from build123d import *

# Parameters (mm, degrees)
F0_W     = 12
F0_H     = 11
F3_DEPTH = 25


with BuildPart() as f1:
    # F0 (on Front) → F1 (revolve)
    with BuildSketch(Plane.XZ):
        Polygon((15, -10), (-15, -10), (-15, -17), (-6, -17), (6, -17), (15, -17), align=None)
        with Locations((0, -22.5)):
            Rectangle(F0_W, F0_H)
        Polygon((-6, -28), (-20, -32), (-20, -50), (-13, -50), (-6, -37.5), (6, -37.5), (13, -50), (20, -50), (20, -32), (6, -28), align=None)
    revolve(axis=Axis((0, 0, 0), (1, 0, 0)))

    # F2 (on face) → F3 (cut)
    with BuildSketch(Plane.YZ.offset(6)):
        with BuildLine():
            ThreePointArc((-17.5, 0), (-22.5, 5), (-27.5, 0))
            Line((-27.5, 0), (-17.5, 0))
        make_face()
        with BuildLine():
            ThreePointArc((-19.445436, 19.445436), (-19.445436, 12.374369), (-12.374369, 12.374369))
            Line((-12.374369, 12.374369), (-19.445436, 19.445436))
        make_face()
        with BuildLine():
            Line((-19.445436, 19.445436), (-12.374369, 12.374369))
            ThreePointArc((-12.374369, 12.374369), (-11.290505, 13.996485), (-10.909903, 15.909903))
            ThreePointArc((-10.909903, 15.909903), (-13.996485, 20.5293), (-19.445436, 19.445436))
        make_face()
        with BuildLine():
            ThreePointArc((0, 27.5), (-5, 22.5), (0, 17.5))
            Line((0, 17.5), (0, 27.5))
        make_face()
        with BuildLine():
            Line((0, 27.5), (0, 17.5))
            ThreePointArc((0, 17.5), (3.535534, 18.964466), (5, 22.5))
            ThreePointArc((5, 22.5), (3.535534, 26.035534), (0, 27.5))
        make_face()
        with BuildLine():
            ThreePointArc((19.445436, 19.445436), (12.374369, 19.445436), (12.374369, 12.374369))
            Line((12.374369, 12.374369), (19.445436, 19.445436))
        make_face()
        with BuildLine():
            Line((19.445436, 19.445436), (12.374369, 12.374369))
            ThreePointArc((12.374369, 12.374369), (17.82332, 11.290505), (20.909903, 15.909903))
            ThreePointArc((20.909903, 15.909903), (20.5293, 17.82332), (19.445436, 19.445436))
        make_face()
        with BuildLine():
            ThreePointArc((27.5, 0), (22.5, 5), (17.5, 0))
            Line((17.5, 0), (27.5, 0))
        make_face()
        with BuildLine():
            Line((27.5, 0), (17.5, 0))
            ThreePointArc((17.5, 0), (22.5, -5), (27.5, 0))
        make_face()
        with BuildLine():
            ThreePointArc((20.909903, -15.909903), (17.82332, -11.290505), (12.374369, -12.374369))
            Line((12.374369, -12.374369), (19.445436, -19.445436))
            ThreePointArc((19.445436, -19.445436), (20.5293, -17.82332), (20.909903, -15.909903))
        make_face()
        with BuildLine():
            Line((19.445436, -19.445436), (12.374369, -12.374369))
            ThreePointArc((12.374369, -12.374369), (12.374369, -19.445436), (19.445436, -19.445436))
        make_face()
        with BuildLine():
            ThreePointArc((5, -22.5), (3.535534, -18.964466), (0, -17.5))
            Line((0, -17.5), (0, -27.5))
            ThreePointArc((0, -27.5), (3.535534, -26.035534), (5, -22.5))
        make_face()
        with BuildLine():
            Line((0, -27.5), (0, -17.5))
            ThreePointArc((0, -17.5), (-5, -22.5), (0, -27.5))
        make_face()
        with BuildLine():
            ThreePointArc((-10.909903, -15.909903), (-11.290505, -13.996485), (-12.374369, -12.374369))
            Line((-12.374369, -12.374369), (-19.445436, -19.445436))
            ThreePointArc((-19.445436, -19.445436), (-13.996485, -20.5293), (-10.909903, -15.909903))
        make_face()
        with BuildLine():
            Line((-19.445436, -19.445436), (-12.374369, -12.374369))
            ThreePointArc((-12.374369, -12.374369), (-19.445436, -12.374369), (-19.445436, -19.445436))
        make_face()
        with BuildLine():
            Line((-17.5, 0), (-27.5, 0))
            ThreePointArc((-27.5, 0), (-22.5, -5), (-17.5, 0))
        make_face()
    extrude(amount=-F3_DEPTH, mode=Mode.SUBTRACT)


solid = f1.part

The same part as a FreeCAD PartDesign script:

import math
import FreeCAD as App
import Part
import Sketcher

V = App.Vector

doc = App.newDocument("Part")
body = doc.addObject("PartDesign::Body", "Body")

sketch1 = body.newObject("Sketcher::SketchObject", "Sketch")
sketch1.AttachmentSupport = (doc.getObject("XZ_Plane"), [""])
sketch1.MapMode = "FlatFace"
sketch1.addGeometry(Part.LineSegment(V(15, -10, 0), V(-15, -10, 0)), False)
sketch1.addGeometry(Part.LineSegment(V(-15, -10, 0), V(-15, -17, 0)), False)
sketch1.addGeometry(Part.LineSegment(V(-15, -17, 0), V(-6, -17, 0)), False)
sketch1.addGeometry(Part.LineSegment(V(-6, -17, 0), V(-6, -28, 0)), False)
sketch1.addGeometry(Part.LineSegment(V(-6, -28, 0), V(-20, -32, 0)), False)
sketch1.addGeometry(Part.LineSegment(V(-20, -32, 0), V(-20, -50, 0)), False)
sketch1.addGeometry(Part.LineSegment(V(-20, -50, 0), V(-13, -50, 0)), False)
sketch1.addGeometry(Part.LineSegment(V(-13, -50, 0), V(-6, -37.5, 0)), False)
sketch1.addGeometry(Part.LineSegment(V(-6, -37.5, 0), V(6, -37.5, 0)), False)
sketch1.addGeometry(Part.LineSegment(V(6, -37.5, 0), V(13, -50, 0)), False)
sketch1.addGeometry(Part.LineSegment(V(13, -50, 0), V(20, -50, 0)), False)
sketch1.addGeometry(Part.LineSegment(V(20, -50, 0), V(20, -32, 0)), False)
sketch1.addGeometry(Part.LineSegment(V(20, -32, 0), V(6, -28, 0)), False)
sketch1.addGeometry(Part.LineSegment(V(6, -28, 0), V(6, -17, 0)), False)
sketch1.addGeometry(Part.LineSegment(V(6, -17, 0), V(15, -17, 0)), False)
sketch1.addGeometry(Part.LineSegment(V(15, -17, 0), V(15, -10, 0)), False)
sketch1.addConstraint(Sketcher.Constraint("Coincident", 0, 2, 1, 1))
sketch1.addConstraint(Sketcher.Constraint("Coincident", 1, 2, 2, 1))
sketch1.addConstraint(Sketcher.Constraint("Coincident", 2, 2, 3, 1))
sketch1.addConstraint(Sketcher.Constraint("Coincident", 3, 2, 4, 1))
sketch1.addConstraint(Sketcher.Constraint("Coincident", 4, 2, 5, 1))
sketch1.addConstraint(Sketcher.Constraint("Coincident", 5, 2, 6, 1))
sketch1.addConstraint(Sketcher.Constraint("Coincident", 6, 2, 7, 1))
sketch1.addConstraint(Sketcher.Constraint("Coincident", 7, 2, 8, 1))
sketch1.addConstraint(Sketcher.Constraint("Coincident", 8, 2, 9, 1))
sketch1.addConstraint(Sketcher.Constraint("Coincident", 9, 2, 10, 1))
sketch1.addConstraint(Sketcher.Constraint("Coincident", 10, 2, 11, 1))
sketch1.addConstraint(Sketcher.Constraint("Coincident", 11, 2, 12, 1))
sketch1.addConstraint(Sketcher.Constraint("Coincident", 12, 2, 13, 1))
sketch1.addConstraint(Sketcher.Constraint("Coincident", 13, 2, 14, 1))
sketch1.addConstraint(Sketcher.Constraint("Coincident", 14, 2, 15, 1))
sketch1.addConstraint(Sketcher.Constraint("Coincident", 15, 2, 0, 1))
sketch1.addConstraint(Sketcher.Constraint("Horizontal", 0))
sketch1.addConstraint(Sketcher.Constraint("Vertical", 1))
sketch1.addConstraint(Sketcher.Constraint("Horizontal", 2))
sketch1.addConstraint(Sketcher.Constraint("Vertical", 3))
sketch1.addConstraint(Sketcher.Constraint("Vertical", 5))
sketch1.addConstraint(Sketcher.Constraint("Horizontal", 6))
sketch1.addConstraint(Sketcher.Constraint("Horizontal", 8))
sketch1.addConstraint(Sketcher.Constraint("Horizontal", 10))
sketch1.addConstraint(Sketcher.Constraint("Vertical", 11))
sketch1.addConstraint(Sketcher.Constraint("Vertical", 13))
sketch1.addConstraint(Sketcher.Constraint("Horizontal", 14))
sketch1.addConstraint(Sketcher.Constraint("Vertical", 15))
sketch1.addConstraint(Sketcher.Constraint("Symmetric", 6, 2, 9, 2, -2))
sketch1.addConstraint(Sketcher.Constraint("Symmetric", 4, 2, 11, 2, -2))
sketch1.addConstraint(Sketcher.Constraint("Symmetric", 3, 2, 12, 2, -2))
sketch1.addConstraint(Sketcher.Constraint("Symmetric", 1, 2, 14, 2, -2))
sketch1.addConstraint(Sketcher.Constraint("Vertical", 3, 2, 7, 2))
sketch1.addConstraint(Sketcher.Constraint("Vertical", 8, 2, 12, 2))
sketch1.addConstraint(Sketcher.Constraint("Equal", 10, 1))
sketch1.addConstraint(Sketcher.Constraint("DistanceX", 0, 2, 0, 1, 30.0))
sketch1.addConstraint(Sketcher.Constraint("DistanceX", 2, 1, 2, 2, 9.0))
sketch1.addConstraint(Sketcher.Constraint("DistanceX", 6, 1, 6, 2, 7.0))
sketch1.addConstraint(Sketcher.Constraint("DistanceY", 3, 2, 3, 1, 11.0))
sketch1.addConstraint(Sketcher.Constraint("DistanceY", 5, 2, 5, 1, 18.0))
sketch1.addConstraint(Sketcher.Constraint("DistanceY", 0, 2, -1, 1, 10.0))
sketch1.addConstraint(Sketcher.Constraint("DistanceX", 4, 2, -1, 1, 20.0))
sketch1.addConstraint(Sketcher.Constraint("DistanceY", 4, 2, -1, 1, 32.0))
sketch1.addConstraint(Sketcher.Constraint("DistanceY", 7, 2, -1, 1, 37.5))
revolution = body.newObject("PartDesign::Revolution", "Revolution")
revolution.Profile = sketch1
revolution.ReferenceAxis = (sketch1, ["H_Axis"])
revolution.Angle = 360

sketch2 = body.newObject("Sketcher::SketchObject", "Sketch001")
sketch2.AttachmentSupport = (doc.getObject("YZ_Plane"), [""])
sketch2.MapMode = "FlatFace"
sketch2.AttachmentOffset = App.Placement(V(0, 0, 6), App.Rotation())
sketch2.addGeometry(Part.Circle(V(-22.5, 0, 0), V(0, 0, 1), 5), False)
sketch2.addGeometry(Part.ArcOfCircle(Part.Circle(V(-15.909902, 15.909902, 0), V(0, 0, 1), 4.999999), math.radians(135), math.radians(315)), False)
sketch2.addGeometry(Part.ArcOfCircle(Part.Circle(V(-15.909896, 15.9099, 0), V(0, 0, 1), 4.999993), math.radians(-45.000031), math.radians(0.000034)), False)
sketch2.addGeometry(Part.ArcOfCircle(Part.Circle(V(-15.909902, 15.909903, 0), V(0, 0, 1), 4.999999), math.radians(-0.000003), math.radians(135.000009)), False)
sketch2.addGeometry(Part.ArcOfCircle(Part.Circle(V(0, 22.5, 0), V(0, 0, 1), 5), math.radians(90), math.radians(270)), False)
sketch2.addGeometry(Part.ArcOfCircle(Part.Circle(V(0, 22.5, 0), V(0, 0, 1), 5), math.radians(-90.000004), math.radians(0.000004)), False)
sketch2.addGeometry(Part.ArcOfCircle(Part.Circle(V(0, 22.5, 0), V(0, 0, 1), 5), math.radians(-0.000004), math.radians(90.000004)), False)
sketch2.addGeometry(Part.ArcOfCircle(Part.Circle(V(15.909902, 15.909902, 0), V(0, 0, 1), 4.999999), math.radians(45), math.radians(225)), False)
sketch2.addGeometry(Part.ArcOfCircle(Part.Circle(V(15.909903, 15.909903, 0), V(0, 0, 1), 5), math.radians(-135.000003), math.radians(0.000003)), False)
sketch2.addGeometry(Part.ArcOfCircle(Part.Circle(V(15.909903, 15.909901, 0), V(0, 0, 1), 5), math.radians(0.00002), math.radians(45.000016)), False)
sketch2.addGeometry(Part.Circle(V(22.5, 0, 0), V(0, 0, 1), 5), False)
sketch2.addGeometry(Part.ArcOfCircle(Part.Circle(V(15.909903, -15.909903, 0), V(0, 0, 1), 5), math.radians(-0.000003), math.radians(135.000003)), False)
sketch2.addGeometry(Part.ArcOfCircle(Part.Circle(V(15.909902, -15.909902, 0), V(0, 0, 1), 4.999999), math.radians(135), math.radians(315)), False)
sketch2.addGeometry(Part.ArcOfCircle(Part.Circle(V(15.909903, -15.909901, 0), V(0, 0, 1), 5), math.radians(-45.000016), math.radians(-0.00002)), False)
sketch2.addGeometry(Part.ArcOfCircle(Part.Circle(V(0, -22.5, 0), V(0, 0, 1), 5), math.radians(-0.000004), math.radians(90.000004)), False)
sketch2.addGeometry(Part.ArcOfCircle(Part.Circle(V(0, -22.5, 0), V(0, 0, 1), 5), math.radians(90), math.radians(270)), False)
sketch2.addGeometry(Part.ArcOfCircle(Part.Circle(V(0, -22.5, 0), V(0, 0, 1), 5), math.radians(-90.000004), math.radians(0.000004)), False)
sketch2.addGeometry(Part.ArcOfCircle(Part.Circle(V(-15.909896, -15.9099, 0), V(0, 0, 1), 4.999993), math.radians(-0.000034), math.radians(45.000031)), False)
sketch2.addGeometry(Part.ArcOfCircle(Part.Circle(V(-15.909902, -15.909902, 0), V(0, 0, 1), 4.999999), math.radians(45), math.radians(225)), False)
sketch2.addGeometry(Part.ArcOfCircle(Part.Circle(V(-15.909902, -15.909903, 0), V(0, 0, 1), 4.999999), math.radians(-135.000009), math.radians(0.000003)), False)
sketch2.addConstraint(Sketcher.Constraint("Tangent", 1, 2, 2, 1))
sketch2.addConstraint(Sketcher.Constraint("Tangent", 2, 2, 3, 1))
sketch2.addConstraint(Sketcher.Constraint("Tangent", 3, 2, 1, 1))
sketch2.addConstraint(Sketcher.Constraint("Tangent", 4, 2, 5, 1))
sketch2.addConstraint(Sketcher.Constraint("Tangent", 5, 2, 6, 1))
sketch2.addConstraint(Sketcher.Constraint("Tangent", 6, 2, 4, 1))
sketch2.addConstraint(Sketcher.Constraint("Tangent", 7, 2, 8, 1))
sketch2.addConstraint(Sketcher.Constraint("Tangent", 8, 2, 9, 1))
sketch2.addConstraint(Sketcher.Constraint("Tangent", 9, 2, 7, 1))
sketch2.addConstraint(Sketcher.Constraint("Tangent", 11, 2, 12, 1))
sketch2.addConstraint(Sketcher.Constraint("Tangent", 12, 2, 13, 1))
sketch2.addConstraint(Sketcher.Constraint("Tangent", 13, 2, 11, 1))
sketch2.addConstraint(Sketcher.Constraint("Tangent", 14, 2, 15, 1))
sketch2.addConstraint(Sketcher.Constraint("Tangent", 15, 2, 16, 1))
sketch2.addConstraint(Sketcher.Constraint("Tangent", 16, 2, 14, 1))
sketch2.addConstraint(Sketcher.Constraint("Tangent", 17, 2, 18, 1))
sketch2.addConstraint(Sketcher.Constraint("Tangent", 18, 2, 19, 1))
sketch2.addConstraint(Sketcher.Constraint("Tangent", 19, 2, 17, 1))
sketch2.addConstraint(Sketcher.Constraint("Equal", 0, 1))
sketch2.addConstraint(Sketcher.Constraint("Equal", 3, 4))
sketch2.addConstraint(Sketcher.Constraint("Equal", 6, 7))
sketch2.addConstraint(Sketcher.Constraint("Equal", 9, 10))
sketch2.addConstraint(Sketcher.Constraint("Equal", 10, 11))
sketch2.addConstraint(Sketcher.Constraint("Equal", 13, 14))
sketch2.addConstraint(Sketcher.Constraint("Equal", 2, 17))
sketch2.addConstraint(Sketcher.Constraint("Symmetric", 0, 3, 10, 3, -1, 1))
sketch2.addConstraint(Sketcher.Constraint("Symmetric", 1, 3, 11, 3, -1, 1))
sketch2.addConstraint(Sketcher.Constraint("Symmetric", 4, 3, 14, 3, -1, 1))
sketch2.addConstraint(Sketcher.Constraint("Symmetric", 7, 3, 17, 3, -1, 1))
sketch2.addConstraint(Sketcher.Constraint("Symmetric", 1, 3, 7, 3, -2))
sketch2.addConstraint(Sketcher.Constraint("Symmetric", 5, 2, 16, 2, -1))
sketch2.addConstraint(Sketcher.Constraint("PointOnObject", 0, 3, -1))
sketch2.addConstraint(Sketcher.Constraint("PointOnObject", 4, 2, -2))
sketch2.addConstraint(Sketcher.Constraint("PointOnObject", 6, 2, -2))
sketch2.addConstraint(Sketcher.Constraint("PointOnObject", 14, 2, -2))
sketch2.addConstraint(Sketcher.Constraint("PointOnObject", 15, 2, -2))
sketch2.addConstraint(Sketcher.Constraint("Horizontal", 9, 3, 2, 2))
sketch2.addConstraint(Sketcher.Constraint("Horizontal", 6, 3, 5, 2))
sketch2.addConstraint(Sketcher.Constraint("Horizontal", 1, 2, 7, 2))
sketch2.addConstraint(Sketcher.Constraint("Horizontal", 2, 2, 8, 2))
sketch2.addConstraint(Sketcher.Constraint("Horizontal", 3, 2, 9, 2))
sketch2.addConstraint(Sketcher.Constraint("Horizontal", 19, 3, 13, 2))
sketch2.addConstraint(Sketcher.Constraint("Horizontal", 11, 2, 17, 2))
sketch2.addConstraint(Sketcher.Constraint("Horizontal", 12, 2, 18, 2))
sketch2.addConstraint(Sketcher.Constraint("Horizontal", 13, 2, 19, 2))
sketch2.addConstraint(Sketcher.Constraint("Vertical", 7, 2, 11, 2))
sketch2.addConstraint(Sketcher.Constraint("Vertical", 9, 2, 12, 2))
sketch2.addConstraint(Sketcher.Constraint("Diameter", 0, 10.0))
sketch2.addConstraint(Sketcher.Constraint("DistanceX", 0, 3, -1, 1, 22.5))
sketch2.addConstraint(Sketcher.Constraint("DistanceY", -1, 1, 4, 3, 22.5))
sketch2.addConstraint(Sketcher.Constraint("DistanceY", -1, 1, 2, 3, 15.9099))
sketch2.addConstraint(Sketcher.Constraint("DistanceX", 2, 3, 7, 3, 31.819799))
sketch2.addConstraint(Sketcher.Constraint("DistanceX", 1, 2, -1, 1, 12.374369))
sketch2.addConstraint(Sketcher.Constraint("DistanceX", 3, 2, 2, 3, 3.53554))
pocket1 = body.newObject("PartDesign::Pocket", "Pocket")
pocket1.Profile = sketch2
pocket1.Length = 25

doc.recompute()
